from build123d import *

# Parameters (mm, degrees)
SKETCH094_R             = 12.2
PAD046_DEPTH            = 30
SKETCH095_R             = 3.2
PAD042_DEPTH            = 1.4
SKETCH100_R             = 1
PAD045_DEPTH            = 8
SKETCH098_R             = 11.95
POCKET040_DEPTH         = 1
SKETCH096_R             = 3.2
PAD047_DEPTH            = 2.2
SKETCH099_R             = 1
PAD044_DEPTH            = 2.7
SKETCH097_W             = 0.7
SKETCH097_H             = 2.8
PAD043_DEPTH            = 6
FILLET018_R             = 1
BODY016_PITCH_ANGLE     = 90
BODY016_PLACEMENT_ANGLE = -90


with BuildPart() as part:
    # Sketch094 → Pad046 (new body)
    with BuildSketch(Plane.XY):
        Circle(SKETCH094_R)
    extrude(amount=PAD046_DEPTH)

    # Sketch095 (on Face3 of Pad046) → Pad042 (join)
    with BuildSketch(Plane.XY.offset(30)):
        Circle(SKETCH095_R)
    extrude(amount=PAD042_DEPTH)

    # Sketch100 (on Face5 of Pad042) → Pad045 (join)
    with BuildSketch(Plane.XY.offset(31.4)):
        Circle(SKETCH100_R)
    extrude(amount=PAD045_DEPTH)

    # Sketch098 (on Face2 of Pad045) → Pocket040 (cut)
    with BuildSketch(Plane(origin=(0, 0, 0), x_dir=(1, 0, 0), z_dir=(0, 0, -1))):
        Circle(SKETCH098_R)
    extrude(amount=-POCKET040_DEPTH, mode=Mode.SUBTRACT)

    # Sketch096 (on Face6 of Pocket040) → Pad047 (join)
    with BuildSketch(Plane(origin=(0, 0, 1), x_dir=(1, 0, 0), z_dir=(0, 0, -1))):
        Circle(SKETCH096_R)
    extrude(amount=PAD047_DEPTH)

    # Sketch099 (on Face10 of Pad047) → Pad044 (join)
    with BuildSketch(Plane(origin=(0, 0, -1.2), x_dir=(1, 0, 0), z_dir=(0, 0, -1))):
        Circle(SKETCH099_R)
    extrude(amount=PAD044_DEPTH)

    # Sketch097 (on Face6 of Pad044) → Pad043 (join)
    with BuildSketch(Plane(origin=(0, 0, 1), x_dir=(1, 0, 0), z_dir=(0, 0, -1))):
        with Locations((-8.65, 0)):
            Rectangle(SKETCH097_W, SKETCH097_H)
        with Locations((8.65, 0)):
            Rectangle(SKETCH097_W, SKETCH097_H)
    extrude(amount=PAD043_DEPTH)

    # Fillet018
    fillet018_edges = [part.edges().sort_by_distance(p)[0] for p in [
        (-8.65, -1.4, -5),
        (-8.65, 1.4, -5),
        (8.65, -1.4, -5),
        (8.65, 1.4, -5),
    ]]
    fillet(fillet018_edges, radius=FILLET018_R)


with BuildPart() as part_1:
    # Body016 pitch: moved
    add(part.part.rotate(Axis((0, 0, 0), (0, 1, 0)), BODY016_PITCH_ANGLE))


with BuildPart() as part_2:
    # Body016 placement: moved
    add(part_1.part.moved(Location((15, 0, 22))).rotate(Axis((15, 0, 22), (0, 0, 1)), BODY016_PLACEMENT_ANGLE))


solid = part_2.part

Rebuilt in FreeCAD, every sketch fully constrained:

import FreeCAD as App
import Part
import Sketcher


def edges_at(feature, points):
    """Names of the edges that pass closest to the given points."""
    edges = feature.Shape.Edges
    near = lambda p: min(range(len(edges)), key=lambda i: edges[i].distToShape(Part.Vertex(*p))[0])
    return sorted({f"Edge{near(p) + 1}" for p in points})


def add_polygon(sketch, points):
    """Adds a closed chain of lines whose ends are joined by coincident constraints."""
    first, n = sketch.GeometryCount, len(points)
    for a, b in zip(points, points[1:] + points[:1]):
        sketch.addGeometry(Part.LineSegment(App.Vector(*a, 0), App.Vector(*b, 0)), False)
    for i in range(n):
        sketch.addConstraint(Sketcher.Constraint("Coincident", first + i, 2, first + (i + 1) % n, 1))

doc = App.newDocument("Part")
body = doc.addObject("PartDesign::Body", "Body")

# Sketch on XY plane
sketch1 = body.newObject("Sketcher::SketchObject", "Sketch")
sketch1.AttachmentSupport = (doc.getObject("XY_Plane"), [""])
sketch1.MapMode = "FlatFace"
sketch1.addGeometry(Part.Circle(App.Vector(0, 0, 0), App.Vector(0, 0, 1), 12.2), False)
sketch1.addConstraint([
    Sketcher.Constraint("Coincident", 0, 3, -1, 1),
    Sketcher.Constraint("Diameter", 0, 24.4),
])
pad1 = body.newObject("PartDesign::Pad", "Pad")
pad1.Profile = sketch1
pad1.Length = 30

# Sketch on XY plane
sketch2 = body.newObject("Sketcher::SketchObject", "Sketch001")
sketch2.AttachmentSupport = (doc.getObject("XY_Plane"), [""])
sketch2.MapMode = "FlatFace"
sketch2.AttachmentOffset = App.Placement(App.Vector(0, 0, 30), App.Rotation())
sketch2.addGeometry(Part.Circle(App.Vector(0, 0, 0), App.Vector(0, 0, 1), 3.2), False)
sketch2.addConstraint([
    Sketcher.Constraint("Coincident", 0, 3, -1, 1),
    Sketcher.Constraint("Diameter", 0, 6.4),
])
pad2 = body.newObject("PartDesign::Pad", "Pad001")
pad2.Profile = sketch2
pad2.Length = 1.4

# Sketch on XY plane
sketch3 = body.newObject("Sketcher::SketchObject", "Sketch002")
sketch3.AttachmentSupport = (doc.getObject("XY_Plane"), [""])
sketch3.MapMode = "FlatFace"
sketch3.AttachmentOffset = App.Placement(App.Vector(0, 0, 31.4), App.Rotation())
sketch3.addGeometry(Part.Circle(App.Vector(0, 0, 0), App.Vector(0, 0, 1), 1), False)
sketch3.addConstraint([
    Sketcher.Constraint("Coincident", 0, 3, -1, 1),
    Sketcher.Constraint("Diameter", 0, 2.0),
])
pad3 = body.newObject("PartDesign::Pad", "Pad002")
pad3.Profile = sketch3
pad3.Length = 8

# Sketch on XY plane
sketch4 = body.newObject("Sketcher::SketchObject", "Sketch003")
sketch4.AttachmentSupport = (doc.getObject("XY_Plane"), [""])
sketch4.MapMode = "FlatFace"
sketch4.addGeometry(Part.Circle(App.Vector(0, 0, 0), App.Vector(0, 0, 1), 11.95), False)
sketch4.addConstraint([
    Sketcher.Constraint("Coincident", 0, 3, -1, 1),
    Sketcher.Constraint("Diameter", 0, 23.9),
])
pocket1 = body.newObject("PartDesign::Pocket", "Pocket")
pocket1.Profile = sketch4
pocket1.Length = 1
pocket1.Reversed = True

# Sketch on XY plane
sketch5 = body.newObject("Sketcher::SketchObject", "Sketch004")
sketch5.AttachmentSupport = (doc.getObject("XY_Plane"), [""])
sketch5.MapMode = "FlatFace"
sketch5.AttachmentOffset = App.Placement(App.Vector(0, 0, 1), App.Rotation())
sketch5.addGeometry(Part.Circle(App.Vector(0, 0, 0), App.Vector(0, 0, 1), 3.2), False)
sketch5.addConstraint([
    Sketcher.Constraint("Coincident", 0, 3, -1, 1),
    Sketcher.Constraint("Diameter", 0, 6.4),
])
pad4 = body.newObject("PartDesign::Pad", "Pad003")
pad4.Profile = sketch5
pad4.Length = 2.2
pad4.Reversed = True

# Sketch on XY plane
sketch6 = body.newObject("Sketcher::SketchObject", "Sketch005")
sketch6.AttachmentSupport = (doc.getObject("XY_Plane"), [""])
sketch6.MapMode = "FlatFace"
sketch6.AttachmentOffset = App.Placement(App.Vector(0, 0, -1.2), App.Rotation())
sketch6.addGeometry(Part.Circle(App.Vector(0, 0, 0), App.Vector(0, 0, 1), 1), False)
sketch6.addConstraint([
    Sketcher.Constraint("Coincident", 0, 3, -1, 1),
    Sketcher.Constraint("Diameter", 0, 2.0),
])
pad5 = body.newObject("PartDesign::Pad", "Pad004")
pad5.Profile = sketch6
pad5.Length = 2.7
pad5.Reversed = True

# Sketch on XY plane
sketch7 = body.newObject("Sketcher::SketchObject", "Sketch006")
sketch7.AttachmentSupport = (doc.getObject("XY_Plane"), [""])
sketch7.MapMode = "FlatFace"
sketch7.AttachmentOffset = App.Placement(App.Vector(0, 0, 1), App.Rotation())
add_polygon(sketch7, [(-9, -1.4), (-9, 1.4), (-8.3, 1.4), (-8.3, -1.4)])  # lines 0-3
add_polygon(sketch7, [(8.3, -1.4), (8.3, 1.4), (9, 1.4), (9, -1.4)])  # lines 4-7
sketch7.addConstraint([
    Sketcher.Constraint("Vertical", 0),
    Sketcher.Constraint("Horizontal", 1),
    Sketcher.Constraint("Vertical", 2),
    Sketcher.Constraint("Horizontal", 3),
    Sketcher.Constraint("Vertical", 4),
    Sketcher.Constraint("Horizontal", 5),
    Sketcher.Constraint("Vertical", 6),
    Sketcher.Constraint("Horizontal", 7),
    Sketcher.Constraint("Symmetric", 2, 2, 4, 2, -1, 1),
    Sketcher.Constraint("Symmetric", 0, 2, 6, 2, -1, 1),
    Sketcher.Constraint("Horizontal", 1, 2, 4, 2),
    Sketcher.Constraint("DistanceX", 1, 1, 1, 2, 0.7),
    Sketcher.Constraint("DistanceY", 0, 1, 0, 2, 2.8),
    Sketcher.Constraint("DistanceX", 0, 2, -1, 1, 9.0),
])
pad6 = body.newObject("PartDesign::Pad", "Pad005")
pad6.Profile = sketch7
pad6.Length = 6
pad6.Reversed = True
doc.recompute()

fillet = body.newObject("PartDesign::Fillet", "Fillet")
fillet.Base = (pad6, edges_at(pad6, [
    (-8.65, -1.4, -5),
    (-8.65, 1.4, -5),
    (8.65, -1.4, -5),
    (8.65, 1.4, -5),
]))
fillet.Radius = 1
body2 = doc.addObject("PartDesign::Body", "Body001")
doc.recompute()

body.Placement = App.Placement(App.Vector(0, 0, 0), App.Rotation(App.Vector(0, 1, 0), 90))
boolean = body2.newObject("PartDesign::Boolean", "Boolean")
boolean.Type = "Fuse"
boolean.addObjects([body])
body3 = doc.addObject("PartDesign::Body", "Body002")
doc.recompute()

body2.Placement = App.Placement(App.Vector(15, 0, 22), App.Rotation(App.Vector(0, 0, 1), 270))
boolean2 = body3.newObject("PartDesign::Boolean", "Boolean001")
boolean2.Type = "Fuse"
boolean2.addObjects([body2])

doc.recompute()
